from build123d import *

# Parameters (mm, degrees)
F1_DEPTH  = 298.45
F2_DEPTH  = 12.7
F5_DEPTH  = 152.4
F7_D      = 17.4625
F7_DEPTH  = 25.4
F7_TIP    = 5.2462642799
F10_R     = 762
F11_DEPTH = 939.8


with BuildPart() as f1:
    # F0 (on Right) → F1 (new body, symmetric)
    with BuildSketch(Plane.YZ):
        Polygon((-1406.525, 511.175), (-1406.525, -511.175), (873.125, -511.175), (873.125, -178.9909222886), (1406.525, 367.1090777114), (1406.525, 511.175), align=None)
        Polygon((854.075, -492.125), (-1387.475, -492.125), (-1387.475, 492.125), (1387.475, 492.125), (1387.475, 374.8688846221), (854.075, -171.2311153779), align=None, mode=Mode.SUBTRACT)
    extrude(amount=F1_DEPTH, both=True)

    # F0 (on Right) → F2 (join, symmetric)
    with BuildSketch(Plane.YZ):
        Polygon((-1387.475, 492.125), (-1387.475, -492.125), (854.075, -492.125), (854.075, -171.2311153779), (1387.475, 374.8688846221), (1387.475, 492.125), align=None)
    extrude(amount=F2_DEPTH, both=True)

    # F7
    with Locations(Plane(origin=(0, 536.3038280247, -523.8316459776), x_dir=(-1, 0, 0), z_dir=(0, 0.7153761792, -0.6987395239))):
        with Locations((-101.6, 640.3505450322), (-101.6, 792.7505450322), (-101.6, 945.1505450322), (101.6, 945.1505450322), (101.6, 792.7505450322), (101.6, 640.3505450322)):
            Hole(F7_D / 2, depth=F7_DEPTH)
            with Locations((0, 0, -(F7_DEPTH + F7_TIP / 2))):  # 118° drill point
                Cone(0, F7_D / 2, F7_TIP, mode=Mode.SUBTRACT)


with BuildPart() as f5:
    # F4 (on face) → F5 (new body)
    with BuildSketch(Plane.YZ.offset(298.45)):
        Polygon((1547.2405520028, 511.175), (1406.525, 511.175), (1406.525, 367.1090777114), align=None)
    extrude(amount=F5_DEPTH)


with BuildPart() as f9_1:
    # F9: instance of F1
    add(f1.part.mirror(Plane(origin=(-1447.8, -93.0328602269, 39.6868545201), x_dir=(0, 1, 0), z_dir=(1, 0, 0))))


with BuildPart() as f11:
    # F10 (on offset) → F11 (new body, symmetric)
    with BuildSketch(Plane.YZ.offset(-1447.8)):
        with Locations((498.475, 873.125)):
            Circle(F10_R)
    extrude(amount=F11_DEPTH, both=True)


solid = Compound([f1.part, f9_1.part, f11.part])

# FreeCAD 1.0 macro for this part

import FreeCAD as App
import Part
import Sketcher

V = App.Vector
Q = App.Units.Quantity

doc = App.newDocument("Part")
params = doc.addObject("Spreadsheet::Sheet", "Params")
for row, (alias, value) in enumerate([
    ("sketch1_width", "89.75 in"),
    ("sketch1_height", "40.25 in"),
    ("sketch1_height2", "38.75 in"),
    ("pad1_length", "23.5 in"),
    ("sketch2_width", "88.25 in"),
    ("sketch2_height", "38.75 in"),
    ("pad2_length", "1 in"),
    ("sketch3_diameter", "0.6875 in"),
    ("hole_diameter", "0.6875 in"),
    ("hole_depth", "1 in"),
    ("pad3_length", "6 in"),
    ("sketch5_diameter", "60 in"),
    ("pad4_length", "74 in"),
], start=1):
    params.set(f"A{row}", alias)
    params.set(f"B{row}", "=" + value)
    params.setAlias(f"B{row}", alias)

body = doc.addObject("PartDesign::Body", "Body")

sketch1 = doc.addObject("Sketcher::SketchObject", "Sketch")
body.addObject(sketch1)
sketch1.AttachmentSupport = (doc.YZ_Plane, [""])
sketch1.MapMode = "FlatFace"
sketch1.addGeometry(Part.LineSegment(V(-1406.525, 511.175, 0), V(-1406.525, -511.175, 0)), False)
sketch1.addGeometry(Part.LineSegment(V(-1406.525, -511.175, 0), V(873.125, -511.175, 0)), False)
sketch1.addGeometry(Part.LineSegment(V(873.125, -511.175, 0), V(873.125, -178.990922, 0)), False)
sketch1.addGeometry(Part.LineSegment(V(873.125, -178.990922, 0), V(1406.525, 367.109078, 0)), False)
sketch1.addGeometry(Part.LineSegment(V(1406.525, 367.109078, 0), V(1406.525, 511.175, 0)), False)
sketch1.addGeometry(Part.LineSegment(V(1406.525, 511.175, 0), V(-1406.525, 511.175, 0)), False)
sketch1.addGeometry(Part.LineSegment(V(854.075, -171.231115, 0), V(854.075, -492.125, 0)), False)
sketch1.addGeometry(Part.LineSegment(V(854.075, -492.125, 0), V(-1387.475, -492.125, 0)), False)
sketch1.addGeometry(Part.LineSegment(V(-1387.475, -492.125, 0), V(-1387.475, 492.125, 0)), False)
sketch1.addGeometry(Part.LineSegment(V(-1387.475, 492.125, 0), V(1387.475, 492.125, 0)), False)
sketch1.addGeometry(Part.LineSegment(V(1387.475, 492.125, 0), V(1387.475, 374.868885, 0)), False)
sketch1.addGeometry(Part.LineSegment(V(1387.475, 374.868885, 0), V(854.075, -171.231115, 0)), False)
sketch1.addConstraint(Sketcher.Constraint("Coincident", 0, 2, 1, 1))
sketch1.addConstraint(Sketcher.Constraint("Coincident", 1, 2, 2, 1))
sketch1.addConstraint(Sketcher.Constraint("Coincident", 2, 2, 3, 1))
sketch1.addConstraint(Sketcher.Constraint("Coincident", 3, 2, 4, 1))
sketch1.addConstraint(Sketcher.Constraint("Coincident", 4, 2, 5, 1))
sketch1.addConstraint(Sketcher.Constraint("Coincident", 5, 2, 0, 1))
sketch1.addConstraint(Sketcher.Constraint("Coincident", 6, 2, 7, 1))
sketch1.addConstraint(Sketcher.Constraint("Coincident", 7, 2, 8, 1))
sketch1.addConstraint(Sketcher.Constraint("Coincident", 8, 2, 9, 1))
sketch1.addConstraint(Sketcher.Constraint("Coincident", 9, 2, 10, 1))
sketch1.addConstraint(Sketcher.Constraint("Coincident", 10, 2, 11, 1))
sketch1.addConstraint(Sketcher.Constraint("Coincident", 11, 2, 6, 1))
sketch1.addConstraint(Sketcher.Constraint("Vertical", 0))
sketch1.addConstraint(Sketcher.Constraint("Horizontal", 1))
sketch1.addConstraint(Sketcher.Constraint("Vertical", 2))
sketch1.addConstraint(Sketcher.Constraint("Vertical", 4))
sketch1.addConstraint(Sketcher.Constraint("Horizontal", 5))
sketch1.addConstraint(Sketcher.Constraint("Vertical", 6))
sketch1.addConstraint(Sketcher.Constraint("Horizontal", 7))
sketch1.addConstraint(Sketcher.Constraint("Vertical", 8))
sketch1.addConstraint(Sketcher.Constraint("Horizontal", 9))
sketch1.addConstraint(Sketcher.Constraint("Vertical", 10))
sketch1.addConstraint(Sketcher.Constraint("Symmetric", 0, 2, 4, 2, -1, 1))
sketch1.addConstraint(Sketcher.Constraint("Symmetric", 7, 2, 9, 2, -1, 1))
sketch1.addConstraint(Sketcher.Constraint("Parallel", 3, 11))
sketch1.addConstraint(Sketcher.Constraint("Equal", 3, 11))
sketch1.addConstraint(Sketcher.Constraint("DistanceX", 2, 2, 3, 2, Q("21 in")))
sketch1.addConstraint(Sketcher.Constraint("DistanceX", 0, 2, 6, 2, Q("89 in")))
sketch1.addConstraint(Sketcher.Constraint("DistanceX", 1, 1, 1, 2, Q("89.75 in")))
sketch1.addConstraint(Sketcher.Constraint("DistanceY", 0, 2, 0, 1, Q("40.25 in")))
sketch1.addConstraint(Sketcher.Constraint("DistanceY", 8, 1, 8, 2, Q("38.75 in")))
sketch1.addConstraint(Sketcher.Constraint("DistanceY", 2, 2, 3, 2, Q("21.5 in")))
sketch1.addConstraint(Sketcher.Constraint("DistanceY", 2, 1, 2, 2, Q("332.184078 mm")))
sketch1.addConstraint(Sketcher.Constraint("DistanceY", 6, 2, 6, 1, Q("320.893885 mm")))
sketch1.setExpression("Constraints[28]", "Params.sketch1_width")
sketch1.setExpression("Constraints[29]", "Params.sketch1_height")
sketch1.setExpression("Constraints[30]", "Params.sketch1_height2")
pad1 = doc.addObject("PartDesign::Pad", "Pad")
body.addObject(pad1)
pad1.Profile = sketch1
pad1.setExpression("Length", "Params.pad1_length")
pad1.Midplane = True

sketch2 = doc.addObject("Sketcher::SketchObject", "Sketch001")
body.addObject(sketch2)
sketch2.AttachmentSupport = (doc.YZ_Plane, [""])
sketch2.MapMode = "FlatFace"
sketch2.addGeometry(Part.LineSegment(V(-1387.475, 492.125, 0), V(-1387.475, -492.125, 0)), False)
sketch2.addGeometry(Part.LineSegment(V(-1387.475, -492.125, 0), V(854.075, -492.125, 0)), False)
sketch2.addGeometry(Part.LineSegment(V(854.075, -492.125, 0), V(854.075, -171.231115, 0)), False)
sketch2.addGeometry(Part.LineSegment(V(854.075, -171.231115, 0), V(1387.475, 374.868885, 0)), False)
sketch2.addGeometry(Part.LineSegment(V(1387.475, 374.868885, 0), V(1387.475, 492.125, 0)), False)
sketch2.addGeometry(Part.LineSegment(V(1387.475, 492.125, 0), V(-1387.475, 492.125, 0)), False)
sketch2.addConstraint(Sketcher.Constraint("Coincident", 0, 2, 1, 1))
sketch2.addConstraint(Sketcher.Constraint("Coincident", 1, 2, 2, 1))
sketch2.addConstraint(Sketcher.Constraint("Coincident", 2, 2, 3, 1))
sketch2.addConstraint(Sketcher.Constraint("Coincident", 3, 2, 4, 1))
sketch2.addConstraint(Sketcher.Constraint("Coincident", 4, 2, 5, 1))
sketch2.addConstraint(Sketcher.Constraint("Coincident", 5, 2, 0, 1))
sketch2.addConstraint(Sketcher.Constraint("Vertical", 0))
sketch2.addConstraint(Sketcher.Constraint("Horizontal", 1))
sketch2.addConstraint(Sketcher.Constraint("Vertical", 2))
sketch2.addConstraint(Sketcher.Constraint("Vertical", 4))
sketch2.addConstraint(Sketcher.Constraint("Horizontal", 5))
sketch2.addConstraint(Sketcher.Constraint("Symmetric", 0, 2, 4, 2, -1, 1))
sketch2.addConstraint(Sketcher.Constraint("DistanceX", 2, 2, 3, 2, Q("21 in")))
sketch2.addConstraint(Sketcher.Constraint("DistanceX", 1, 1, 1, 2, Q("88.25 in")))
sketch2.addConstraint(Sketcher.Constraint("DistanceY", 0, 2, 0, 1, Q("38.75 in")))
sketch2.addConstraint(Sketcher.Constraint("DistanceY", 2, 2, 3, 2, Q("21.5 in")))
sketch2.addConstraint(Sketcher.Constraint("DistanceY", 2, 1, 2, 2, Q("320.893885 mm")))
sketch2.setExpression("Constraints[13]", "Params.sketch2_width")
sketch2.setExpression("Constraints[14]", "Params.sketch2_height")
pad2 = doc.addObject("PartDesign::Pad", "Pad001")
body.addObject(pad2)
pad2.Profile = sketch2
pad2.setExpression("Length", "Params.pad2_length")
pad2.Midplane = True

sketch3 = doc.addObject("Sketcher::SketchObject", "Sketch002")
body.addObject(sketch3)
sketch3.Placement = App.Placement(V(0, 536.303828, -523.831646), App.Rotation(V(-1, 0, 0), V(0, 0.698739524, 0.715376179), V(0, 0.715376179, -0.698739524), "ZXY"))
sketch3.addGeometry(Part.Circle(V(-101.6, 640.350545, 0), V(0, 0, 1), 8.73125), False)
sketch3.addGeometry(Part.Circle(V(-101.6, 792.750545, 0), V(0, 0, 1), 8.73125), False)
sketch3.addGeometry(Part.Circle(V(-101.6, 945.150545, 0), V(0, 0, 1), 8.73125), False)
sketch3.addGeometry(Part.Circle(V(101.6, 945.150545, 0), V(0, 0, 1), 8.73125), False)
sketch3.addGeometry(Part.Circle(V(101.6, 792.750545, 0), V(0, 0, 1), 8.73125), False)
sketch3.addGeometry(Part.Circle(V(101.6, 640.350545, 0), V(0, 0, 1), 8.73125), False)
sketch3.addConstraint(Sketcher.Constraint("Equal", 0, 1))
sketch3.addConstraint(Sketcher.Constraint("Equal", 1, 2))
sketch3.addConstraint(Sketcher.Constraint("Equal", 2, 3))
sketch3.addConstraint(Sketcher.Constraint("Equal", 3, 4))
sketch3.addConstraint(Sketcher.Constraint("Equal", 4, 5))
sketch3.addConstraint(Sketcher.Constraint("Symmetric", 2, 3, 3, 3, -2))
sketch3.addConstraint(Sketcher.Constraint("Symmetric", 1, 3, 4, 3, -2))
sketch3.addConstraint(Sketcher.Constraint("Symmetric", 0, 3, 5, 3, -2))
sketch3.addConstraint(Sketcher.Constraint("Vertical", 0, 3, 1, 3))
sketch3.addConstraint(Sketcher.Constraint("Vertical", 1, 3, 2, 3))
sketch3.addConstraint(Sketcher.Constraint("Diameter", 0, Q("0.6875 in")))
sketch3.addConstraint(Sketcher.Constraint("DistanceX", 0, 3, -1, 1, Q("4 in")))
sketch3.addConstraint(Sketcher.Constraint("DistanceY", 0, 3, 1, 3, Q("6 in")))
sketch3.addConstraint(Sketcher.Constraint("DistanceY", 1, 3, 2, 3, Q("6 in")))
sketch3.addConstraint(Sketcher.Constraint("DistanceY", -1, 1, 0, 3, Q("640.350545 mm")))
sketch3.setExpression("Constraints[10]", "Params.sketch3_diameter")
doc.recompute()
hole = doc.addObject("PartDesign::Hole", "Hole")
body.addObject(hole)
hole.Profile = sketch3
hole.ThreadType = "None"
hole.setExpression("Diameter", "Params.hole_diameter")
hole.DepthType = "Dimension"
hole.setExpression("Depth", "Params.hole_depth")
hole.DrillPoint = "Angled"
hole.DrillPointAngle = 118
body2 = doc.addObject("PartDesign::Body", "Body001")

sketch4 = doc.addObject("Sketcher::SketchObject", "Sketch003")
body2.addObject(sketch4)
sketch4.AttachmentSupport = (doc.getObject("YZ_Plane001"), [""])
sketch4.MapMode = "FlatFace"
sketch4.AttachmentOffset = App.Placement(V(0, 0, 11.75 * 25.4), App.Rotation())
sketch4.addGeometry(Part.LineSegment(V(1547.240552, 511.175, 0), V(1406.525, 511.175, 0)), False)
sketch4.addGeometry(Part.LineSegment(V(1406.525, 511.175, 0), V(1406.525, 367.109078, 0)), False)
sketch4.addGeometry(Part.LineSegment(V(1406.525, 367.109078, 0), V(1547.240552, 511.175, 0)), False)
sketch4.addConstraint(Sketcher.Constraint("Coincident", 0, 2, 1, 1))
sketch4.addConstraint(Sketcher.Constraint("Coincident", 1, 2, 2, 1))
sketch4.addConstraint(Sketcher.Constraint("Coincident", 2, 2, 0, 1))
sketch4.addConstraint(Sketcher.Constraint("Horizontal", 0))
sketch4.addConstraint(Sketcher.Constraint("Vertical", 1))
sketch4.addConstraint(Sketcher.Constraint("DistanceX", -1, 1, 0, 2, Q("55.375 in")))
sketch4.addConstraint(Sketcher.Constraint("DistanceY", -1, 1, 0, 2, Q("20.125 in")))
sketch4.addConstraint(Sketcher.Constraint("DistanceX", 0, 2, 0, 1, Q("140.715552 mm")))
sketch4.addConstraint(Sketcher.Constraint("DistanceY", 1, 2, 1, 1, Q("144.065922 mm")))
pad3 = doc.addObject("PartDesign::Pad", "Pad002")
body2.addObject(pad3)
pad3.Profile = sketch4
pad3.setExpression("Length", "Params.pad3_length")
body3 = doc.addObject("PartDesign::Body", "Body002")
doc.recompute()

mirroring = doc.addObject("Part::Mirroring", "Mirroring")
mirroring.Source = body
mirroring.Base = V(-1447.8, -93.03286, 39.686855)
mirroring.Normal = V(1, 0, 0)
body3.BaseFeature = mirroring
doc.recompute()
body4 = doc.addObject("PartDesign::Body", "Body003")

sketch5 = doc.addObject("Sketcher::SketchObject", "Sketch004")
body4.addObject(sketch5)
sketch5.AttachmentSupport = (doc.getObject("YZ_Plane003"), [""])
sketch5.MapMode = "FlatFace"
sketch5.AttachmentOffset = App.Placement(V(0, 0, -57 * 25.4), App.Rotation())
sketch5.addGeometry(Part.Circle(V(498.475, 873.125, 0), V(0, 0, 1), 762), False)
sketch5.addConstraint(Sketcher.Constraint("Diameter", 0, Q("60 in")))
sketch5.addConstraint(Sketcher.Constraint("DistanceX", -1, 1, 0, 3, Q("19.625 in")))
sketch5.addConstraint(Sketcher.Constraint("DistanceY", -1, 1, 0, 3, Q("34.375 in")))
sketch5.setExpression("Constraints[0]", "Params.sketch5_diameter")
pad4 = doc.addObject("PartDesign::Pad", "Pad003")
body4.addObject(pad4)
pad4.Profile = sketch5
pad4.setExpression("Length", "Params.pad4_length")
pad4.Midplane = True
body2.Visibility = False
mirroring.Visibility = False

doc.recompute()
